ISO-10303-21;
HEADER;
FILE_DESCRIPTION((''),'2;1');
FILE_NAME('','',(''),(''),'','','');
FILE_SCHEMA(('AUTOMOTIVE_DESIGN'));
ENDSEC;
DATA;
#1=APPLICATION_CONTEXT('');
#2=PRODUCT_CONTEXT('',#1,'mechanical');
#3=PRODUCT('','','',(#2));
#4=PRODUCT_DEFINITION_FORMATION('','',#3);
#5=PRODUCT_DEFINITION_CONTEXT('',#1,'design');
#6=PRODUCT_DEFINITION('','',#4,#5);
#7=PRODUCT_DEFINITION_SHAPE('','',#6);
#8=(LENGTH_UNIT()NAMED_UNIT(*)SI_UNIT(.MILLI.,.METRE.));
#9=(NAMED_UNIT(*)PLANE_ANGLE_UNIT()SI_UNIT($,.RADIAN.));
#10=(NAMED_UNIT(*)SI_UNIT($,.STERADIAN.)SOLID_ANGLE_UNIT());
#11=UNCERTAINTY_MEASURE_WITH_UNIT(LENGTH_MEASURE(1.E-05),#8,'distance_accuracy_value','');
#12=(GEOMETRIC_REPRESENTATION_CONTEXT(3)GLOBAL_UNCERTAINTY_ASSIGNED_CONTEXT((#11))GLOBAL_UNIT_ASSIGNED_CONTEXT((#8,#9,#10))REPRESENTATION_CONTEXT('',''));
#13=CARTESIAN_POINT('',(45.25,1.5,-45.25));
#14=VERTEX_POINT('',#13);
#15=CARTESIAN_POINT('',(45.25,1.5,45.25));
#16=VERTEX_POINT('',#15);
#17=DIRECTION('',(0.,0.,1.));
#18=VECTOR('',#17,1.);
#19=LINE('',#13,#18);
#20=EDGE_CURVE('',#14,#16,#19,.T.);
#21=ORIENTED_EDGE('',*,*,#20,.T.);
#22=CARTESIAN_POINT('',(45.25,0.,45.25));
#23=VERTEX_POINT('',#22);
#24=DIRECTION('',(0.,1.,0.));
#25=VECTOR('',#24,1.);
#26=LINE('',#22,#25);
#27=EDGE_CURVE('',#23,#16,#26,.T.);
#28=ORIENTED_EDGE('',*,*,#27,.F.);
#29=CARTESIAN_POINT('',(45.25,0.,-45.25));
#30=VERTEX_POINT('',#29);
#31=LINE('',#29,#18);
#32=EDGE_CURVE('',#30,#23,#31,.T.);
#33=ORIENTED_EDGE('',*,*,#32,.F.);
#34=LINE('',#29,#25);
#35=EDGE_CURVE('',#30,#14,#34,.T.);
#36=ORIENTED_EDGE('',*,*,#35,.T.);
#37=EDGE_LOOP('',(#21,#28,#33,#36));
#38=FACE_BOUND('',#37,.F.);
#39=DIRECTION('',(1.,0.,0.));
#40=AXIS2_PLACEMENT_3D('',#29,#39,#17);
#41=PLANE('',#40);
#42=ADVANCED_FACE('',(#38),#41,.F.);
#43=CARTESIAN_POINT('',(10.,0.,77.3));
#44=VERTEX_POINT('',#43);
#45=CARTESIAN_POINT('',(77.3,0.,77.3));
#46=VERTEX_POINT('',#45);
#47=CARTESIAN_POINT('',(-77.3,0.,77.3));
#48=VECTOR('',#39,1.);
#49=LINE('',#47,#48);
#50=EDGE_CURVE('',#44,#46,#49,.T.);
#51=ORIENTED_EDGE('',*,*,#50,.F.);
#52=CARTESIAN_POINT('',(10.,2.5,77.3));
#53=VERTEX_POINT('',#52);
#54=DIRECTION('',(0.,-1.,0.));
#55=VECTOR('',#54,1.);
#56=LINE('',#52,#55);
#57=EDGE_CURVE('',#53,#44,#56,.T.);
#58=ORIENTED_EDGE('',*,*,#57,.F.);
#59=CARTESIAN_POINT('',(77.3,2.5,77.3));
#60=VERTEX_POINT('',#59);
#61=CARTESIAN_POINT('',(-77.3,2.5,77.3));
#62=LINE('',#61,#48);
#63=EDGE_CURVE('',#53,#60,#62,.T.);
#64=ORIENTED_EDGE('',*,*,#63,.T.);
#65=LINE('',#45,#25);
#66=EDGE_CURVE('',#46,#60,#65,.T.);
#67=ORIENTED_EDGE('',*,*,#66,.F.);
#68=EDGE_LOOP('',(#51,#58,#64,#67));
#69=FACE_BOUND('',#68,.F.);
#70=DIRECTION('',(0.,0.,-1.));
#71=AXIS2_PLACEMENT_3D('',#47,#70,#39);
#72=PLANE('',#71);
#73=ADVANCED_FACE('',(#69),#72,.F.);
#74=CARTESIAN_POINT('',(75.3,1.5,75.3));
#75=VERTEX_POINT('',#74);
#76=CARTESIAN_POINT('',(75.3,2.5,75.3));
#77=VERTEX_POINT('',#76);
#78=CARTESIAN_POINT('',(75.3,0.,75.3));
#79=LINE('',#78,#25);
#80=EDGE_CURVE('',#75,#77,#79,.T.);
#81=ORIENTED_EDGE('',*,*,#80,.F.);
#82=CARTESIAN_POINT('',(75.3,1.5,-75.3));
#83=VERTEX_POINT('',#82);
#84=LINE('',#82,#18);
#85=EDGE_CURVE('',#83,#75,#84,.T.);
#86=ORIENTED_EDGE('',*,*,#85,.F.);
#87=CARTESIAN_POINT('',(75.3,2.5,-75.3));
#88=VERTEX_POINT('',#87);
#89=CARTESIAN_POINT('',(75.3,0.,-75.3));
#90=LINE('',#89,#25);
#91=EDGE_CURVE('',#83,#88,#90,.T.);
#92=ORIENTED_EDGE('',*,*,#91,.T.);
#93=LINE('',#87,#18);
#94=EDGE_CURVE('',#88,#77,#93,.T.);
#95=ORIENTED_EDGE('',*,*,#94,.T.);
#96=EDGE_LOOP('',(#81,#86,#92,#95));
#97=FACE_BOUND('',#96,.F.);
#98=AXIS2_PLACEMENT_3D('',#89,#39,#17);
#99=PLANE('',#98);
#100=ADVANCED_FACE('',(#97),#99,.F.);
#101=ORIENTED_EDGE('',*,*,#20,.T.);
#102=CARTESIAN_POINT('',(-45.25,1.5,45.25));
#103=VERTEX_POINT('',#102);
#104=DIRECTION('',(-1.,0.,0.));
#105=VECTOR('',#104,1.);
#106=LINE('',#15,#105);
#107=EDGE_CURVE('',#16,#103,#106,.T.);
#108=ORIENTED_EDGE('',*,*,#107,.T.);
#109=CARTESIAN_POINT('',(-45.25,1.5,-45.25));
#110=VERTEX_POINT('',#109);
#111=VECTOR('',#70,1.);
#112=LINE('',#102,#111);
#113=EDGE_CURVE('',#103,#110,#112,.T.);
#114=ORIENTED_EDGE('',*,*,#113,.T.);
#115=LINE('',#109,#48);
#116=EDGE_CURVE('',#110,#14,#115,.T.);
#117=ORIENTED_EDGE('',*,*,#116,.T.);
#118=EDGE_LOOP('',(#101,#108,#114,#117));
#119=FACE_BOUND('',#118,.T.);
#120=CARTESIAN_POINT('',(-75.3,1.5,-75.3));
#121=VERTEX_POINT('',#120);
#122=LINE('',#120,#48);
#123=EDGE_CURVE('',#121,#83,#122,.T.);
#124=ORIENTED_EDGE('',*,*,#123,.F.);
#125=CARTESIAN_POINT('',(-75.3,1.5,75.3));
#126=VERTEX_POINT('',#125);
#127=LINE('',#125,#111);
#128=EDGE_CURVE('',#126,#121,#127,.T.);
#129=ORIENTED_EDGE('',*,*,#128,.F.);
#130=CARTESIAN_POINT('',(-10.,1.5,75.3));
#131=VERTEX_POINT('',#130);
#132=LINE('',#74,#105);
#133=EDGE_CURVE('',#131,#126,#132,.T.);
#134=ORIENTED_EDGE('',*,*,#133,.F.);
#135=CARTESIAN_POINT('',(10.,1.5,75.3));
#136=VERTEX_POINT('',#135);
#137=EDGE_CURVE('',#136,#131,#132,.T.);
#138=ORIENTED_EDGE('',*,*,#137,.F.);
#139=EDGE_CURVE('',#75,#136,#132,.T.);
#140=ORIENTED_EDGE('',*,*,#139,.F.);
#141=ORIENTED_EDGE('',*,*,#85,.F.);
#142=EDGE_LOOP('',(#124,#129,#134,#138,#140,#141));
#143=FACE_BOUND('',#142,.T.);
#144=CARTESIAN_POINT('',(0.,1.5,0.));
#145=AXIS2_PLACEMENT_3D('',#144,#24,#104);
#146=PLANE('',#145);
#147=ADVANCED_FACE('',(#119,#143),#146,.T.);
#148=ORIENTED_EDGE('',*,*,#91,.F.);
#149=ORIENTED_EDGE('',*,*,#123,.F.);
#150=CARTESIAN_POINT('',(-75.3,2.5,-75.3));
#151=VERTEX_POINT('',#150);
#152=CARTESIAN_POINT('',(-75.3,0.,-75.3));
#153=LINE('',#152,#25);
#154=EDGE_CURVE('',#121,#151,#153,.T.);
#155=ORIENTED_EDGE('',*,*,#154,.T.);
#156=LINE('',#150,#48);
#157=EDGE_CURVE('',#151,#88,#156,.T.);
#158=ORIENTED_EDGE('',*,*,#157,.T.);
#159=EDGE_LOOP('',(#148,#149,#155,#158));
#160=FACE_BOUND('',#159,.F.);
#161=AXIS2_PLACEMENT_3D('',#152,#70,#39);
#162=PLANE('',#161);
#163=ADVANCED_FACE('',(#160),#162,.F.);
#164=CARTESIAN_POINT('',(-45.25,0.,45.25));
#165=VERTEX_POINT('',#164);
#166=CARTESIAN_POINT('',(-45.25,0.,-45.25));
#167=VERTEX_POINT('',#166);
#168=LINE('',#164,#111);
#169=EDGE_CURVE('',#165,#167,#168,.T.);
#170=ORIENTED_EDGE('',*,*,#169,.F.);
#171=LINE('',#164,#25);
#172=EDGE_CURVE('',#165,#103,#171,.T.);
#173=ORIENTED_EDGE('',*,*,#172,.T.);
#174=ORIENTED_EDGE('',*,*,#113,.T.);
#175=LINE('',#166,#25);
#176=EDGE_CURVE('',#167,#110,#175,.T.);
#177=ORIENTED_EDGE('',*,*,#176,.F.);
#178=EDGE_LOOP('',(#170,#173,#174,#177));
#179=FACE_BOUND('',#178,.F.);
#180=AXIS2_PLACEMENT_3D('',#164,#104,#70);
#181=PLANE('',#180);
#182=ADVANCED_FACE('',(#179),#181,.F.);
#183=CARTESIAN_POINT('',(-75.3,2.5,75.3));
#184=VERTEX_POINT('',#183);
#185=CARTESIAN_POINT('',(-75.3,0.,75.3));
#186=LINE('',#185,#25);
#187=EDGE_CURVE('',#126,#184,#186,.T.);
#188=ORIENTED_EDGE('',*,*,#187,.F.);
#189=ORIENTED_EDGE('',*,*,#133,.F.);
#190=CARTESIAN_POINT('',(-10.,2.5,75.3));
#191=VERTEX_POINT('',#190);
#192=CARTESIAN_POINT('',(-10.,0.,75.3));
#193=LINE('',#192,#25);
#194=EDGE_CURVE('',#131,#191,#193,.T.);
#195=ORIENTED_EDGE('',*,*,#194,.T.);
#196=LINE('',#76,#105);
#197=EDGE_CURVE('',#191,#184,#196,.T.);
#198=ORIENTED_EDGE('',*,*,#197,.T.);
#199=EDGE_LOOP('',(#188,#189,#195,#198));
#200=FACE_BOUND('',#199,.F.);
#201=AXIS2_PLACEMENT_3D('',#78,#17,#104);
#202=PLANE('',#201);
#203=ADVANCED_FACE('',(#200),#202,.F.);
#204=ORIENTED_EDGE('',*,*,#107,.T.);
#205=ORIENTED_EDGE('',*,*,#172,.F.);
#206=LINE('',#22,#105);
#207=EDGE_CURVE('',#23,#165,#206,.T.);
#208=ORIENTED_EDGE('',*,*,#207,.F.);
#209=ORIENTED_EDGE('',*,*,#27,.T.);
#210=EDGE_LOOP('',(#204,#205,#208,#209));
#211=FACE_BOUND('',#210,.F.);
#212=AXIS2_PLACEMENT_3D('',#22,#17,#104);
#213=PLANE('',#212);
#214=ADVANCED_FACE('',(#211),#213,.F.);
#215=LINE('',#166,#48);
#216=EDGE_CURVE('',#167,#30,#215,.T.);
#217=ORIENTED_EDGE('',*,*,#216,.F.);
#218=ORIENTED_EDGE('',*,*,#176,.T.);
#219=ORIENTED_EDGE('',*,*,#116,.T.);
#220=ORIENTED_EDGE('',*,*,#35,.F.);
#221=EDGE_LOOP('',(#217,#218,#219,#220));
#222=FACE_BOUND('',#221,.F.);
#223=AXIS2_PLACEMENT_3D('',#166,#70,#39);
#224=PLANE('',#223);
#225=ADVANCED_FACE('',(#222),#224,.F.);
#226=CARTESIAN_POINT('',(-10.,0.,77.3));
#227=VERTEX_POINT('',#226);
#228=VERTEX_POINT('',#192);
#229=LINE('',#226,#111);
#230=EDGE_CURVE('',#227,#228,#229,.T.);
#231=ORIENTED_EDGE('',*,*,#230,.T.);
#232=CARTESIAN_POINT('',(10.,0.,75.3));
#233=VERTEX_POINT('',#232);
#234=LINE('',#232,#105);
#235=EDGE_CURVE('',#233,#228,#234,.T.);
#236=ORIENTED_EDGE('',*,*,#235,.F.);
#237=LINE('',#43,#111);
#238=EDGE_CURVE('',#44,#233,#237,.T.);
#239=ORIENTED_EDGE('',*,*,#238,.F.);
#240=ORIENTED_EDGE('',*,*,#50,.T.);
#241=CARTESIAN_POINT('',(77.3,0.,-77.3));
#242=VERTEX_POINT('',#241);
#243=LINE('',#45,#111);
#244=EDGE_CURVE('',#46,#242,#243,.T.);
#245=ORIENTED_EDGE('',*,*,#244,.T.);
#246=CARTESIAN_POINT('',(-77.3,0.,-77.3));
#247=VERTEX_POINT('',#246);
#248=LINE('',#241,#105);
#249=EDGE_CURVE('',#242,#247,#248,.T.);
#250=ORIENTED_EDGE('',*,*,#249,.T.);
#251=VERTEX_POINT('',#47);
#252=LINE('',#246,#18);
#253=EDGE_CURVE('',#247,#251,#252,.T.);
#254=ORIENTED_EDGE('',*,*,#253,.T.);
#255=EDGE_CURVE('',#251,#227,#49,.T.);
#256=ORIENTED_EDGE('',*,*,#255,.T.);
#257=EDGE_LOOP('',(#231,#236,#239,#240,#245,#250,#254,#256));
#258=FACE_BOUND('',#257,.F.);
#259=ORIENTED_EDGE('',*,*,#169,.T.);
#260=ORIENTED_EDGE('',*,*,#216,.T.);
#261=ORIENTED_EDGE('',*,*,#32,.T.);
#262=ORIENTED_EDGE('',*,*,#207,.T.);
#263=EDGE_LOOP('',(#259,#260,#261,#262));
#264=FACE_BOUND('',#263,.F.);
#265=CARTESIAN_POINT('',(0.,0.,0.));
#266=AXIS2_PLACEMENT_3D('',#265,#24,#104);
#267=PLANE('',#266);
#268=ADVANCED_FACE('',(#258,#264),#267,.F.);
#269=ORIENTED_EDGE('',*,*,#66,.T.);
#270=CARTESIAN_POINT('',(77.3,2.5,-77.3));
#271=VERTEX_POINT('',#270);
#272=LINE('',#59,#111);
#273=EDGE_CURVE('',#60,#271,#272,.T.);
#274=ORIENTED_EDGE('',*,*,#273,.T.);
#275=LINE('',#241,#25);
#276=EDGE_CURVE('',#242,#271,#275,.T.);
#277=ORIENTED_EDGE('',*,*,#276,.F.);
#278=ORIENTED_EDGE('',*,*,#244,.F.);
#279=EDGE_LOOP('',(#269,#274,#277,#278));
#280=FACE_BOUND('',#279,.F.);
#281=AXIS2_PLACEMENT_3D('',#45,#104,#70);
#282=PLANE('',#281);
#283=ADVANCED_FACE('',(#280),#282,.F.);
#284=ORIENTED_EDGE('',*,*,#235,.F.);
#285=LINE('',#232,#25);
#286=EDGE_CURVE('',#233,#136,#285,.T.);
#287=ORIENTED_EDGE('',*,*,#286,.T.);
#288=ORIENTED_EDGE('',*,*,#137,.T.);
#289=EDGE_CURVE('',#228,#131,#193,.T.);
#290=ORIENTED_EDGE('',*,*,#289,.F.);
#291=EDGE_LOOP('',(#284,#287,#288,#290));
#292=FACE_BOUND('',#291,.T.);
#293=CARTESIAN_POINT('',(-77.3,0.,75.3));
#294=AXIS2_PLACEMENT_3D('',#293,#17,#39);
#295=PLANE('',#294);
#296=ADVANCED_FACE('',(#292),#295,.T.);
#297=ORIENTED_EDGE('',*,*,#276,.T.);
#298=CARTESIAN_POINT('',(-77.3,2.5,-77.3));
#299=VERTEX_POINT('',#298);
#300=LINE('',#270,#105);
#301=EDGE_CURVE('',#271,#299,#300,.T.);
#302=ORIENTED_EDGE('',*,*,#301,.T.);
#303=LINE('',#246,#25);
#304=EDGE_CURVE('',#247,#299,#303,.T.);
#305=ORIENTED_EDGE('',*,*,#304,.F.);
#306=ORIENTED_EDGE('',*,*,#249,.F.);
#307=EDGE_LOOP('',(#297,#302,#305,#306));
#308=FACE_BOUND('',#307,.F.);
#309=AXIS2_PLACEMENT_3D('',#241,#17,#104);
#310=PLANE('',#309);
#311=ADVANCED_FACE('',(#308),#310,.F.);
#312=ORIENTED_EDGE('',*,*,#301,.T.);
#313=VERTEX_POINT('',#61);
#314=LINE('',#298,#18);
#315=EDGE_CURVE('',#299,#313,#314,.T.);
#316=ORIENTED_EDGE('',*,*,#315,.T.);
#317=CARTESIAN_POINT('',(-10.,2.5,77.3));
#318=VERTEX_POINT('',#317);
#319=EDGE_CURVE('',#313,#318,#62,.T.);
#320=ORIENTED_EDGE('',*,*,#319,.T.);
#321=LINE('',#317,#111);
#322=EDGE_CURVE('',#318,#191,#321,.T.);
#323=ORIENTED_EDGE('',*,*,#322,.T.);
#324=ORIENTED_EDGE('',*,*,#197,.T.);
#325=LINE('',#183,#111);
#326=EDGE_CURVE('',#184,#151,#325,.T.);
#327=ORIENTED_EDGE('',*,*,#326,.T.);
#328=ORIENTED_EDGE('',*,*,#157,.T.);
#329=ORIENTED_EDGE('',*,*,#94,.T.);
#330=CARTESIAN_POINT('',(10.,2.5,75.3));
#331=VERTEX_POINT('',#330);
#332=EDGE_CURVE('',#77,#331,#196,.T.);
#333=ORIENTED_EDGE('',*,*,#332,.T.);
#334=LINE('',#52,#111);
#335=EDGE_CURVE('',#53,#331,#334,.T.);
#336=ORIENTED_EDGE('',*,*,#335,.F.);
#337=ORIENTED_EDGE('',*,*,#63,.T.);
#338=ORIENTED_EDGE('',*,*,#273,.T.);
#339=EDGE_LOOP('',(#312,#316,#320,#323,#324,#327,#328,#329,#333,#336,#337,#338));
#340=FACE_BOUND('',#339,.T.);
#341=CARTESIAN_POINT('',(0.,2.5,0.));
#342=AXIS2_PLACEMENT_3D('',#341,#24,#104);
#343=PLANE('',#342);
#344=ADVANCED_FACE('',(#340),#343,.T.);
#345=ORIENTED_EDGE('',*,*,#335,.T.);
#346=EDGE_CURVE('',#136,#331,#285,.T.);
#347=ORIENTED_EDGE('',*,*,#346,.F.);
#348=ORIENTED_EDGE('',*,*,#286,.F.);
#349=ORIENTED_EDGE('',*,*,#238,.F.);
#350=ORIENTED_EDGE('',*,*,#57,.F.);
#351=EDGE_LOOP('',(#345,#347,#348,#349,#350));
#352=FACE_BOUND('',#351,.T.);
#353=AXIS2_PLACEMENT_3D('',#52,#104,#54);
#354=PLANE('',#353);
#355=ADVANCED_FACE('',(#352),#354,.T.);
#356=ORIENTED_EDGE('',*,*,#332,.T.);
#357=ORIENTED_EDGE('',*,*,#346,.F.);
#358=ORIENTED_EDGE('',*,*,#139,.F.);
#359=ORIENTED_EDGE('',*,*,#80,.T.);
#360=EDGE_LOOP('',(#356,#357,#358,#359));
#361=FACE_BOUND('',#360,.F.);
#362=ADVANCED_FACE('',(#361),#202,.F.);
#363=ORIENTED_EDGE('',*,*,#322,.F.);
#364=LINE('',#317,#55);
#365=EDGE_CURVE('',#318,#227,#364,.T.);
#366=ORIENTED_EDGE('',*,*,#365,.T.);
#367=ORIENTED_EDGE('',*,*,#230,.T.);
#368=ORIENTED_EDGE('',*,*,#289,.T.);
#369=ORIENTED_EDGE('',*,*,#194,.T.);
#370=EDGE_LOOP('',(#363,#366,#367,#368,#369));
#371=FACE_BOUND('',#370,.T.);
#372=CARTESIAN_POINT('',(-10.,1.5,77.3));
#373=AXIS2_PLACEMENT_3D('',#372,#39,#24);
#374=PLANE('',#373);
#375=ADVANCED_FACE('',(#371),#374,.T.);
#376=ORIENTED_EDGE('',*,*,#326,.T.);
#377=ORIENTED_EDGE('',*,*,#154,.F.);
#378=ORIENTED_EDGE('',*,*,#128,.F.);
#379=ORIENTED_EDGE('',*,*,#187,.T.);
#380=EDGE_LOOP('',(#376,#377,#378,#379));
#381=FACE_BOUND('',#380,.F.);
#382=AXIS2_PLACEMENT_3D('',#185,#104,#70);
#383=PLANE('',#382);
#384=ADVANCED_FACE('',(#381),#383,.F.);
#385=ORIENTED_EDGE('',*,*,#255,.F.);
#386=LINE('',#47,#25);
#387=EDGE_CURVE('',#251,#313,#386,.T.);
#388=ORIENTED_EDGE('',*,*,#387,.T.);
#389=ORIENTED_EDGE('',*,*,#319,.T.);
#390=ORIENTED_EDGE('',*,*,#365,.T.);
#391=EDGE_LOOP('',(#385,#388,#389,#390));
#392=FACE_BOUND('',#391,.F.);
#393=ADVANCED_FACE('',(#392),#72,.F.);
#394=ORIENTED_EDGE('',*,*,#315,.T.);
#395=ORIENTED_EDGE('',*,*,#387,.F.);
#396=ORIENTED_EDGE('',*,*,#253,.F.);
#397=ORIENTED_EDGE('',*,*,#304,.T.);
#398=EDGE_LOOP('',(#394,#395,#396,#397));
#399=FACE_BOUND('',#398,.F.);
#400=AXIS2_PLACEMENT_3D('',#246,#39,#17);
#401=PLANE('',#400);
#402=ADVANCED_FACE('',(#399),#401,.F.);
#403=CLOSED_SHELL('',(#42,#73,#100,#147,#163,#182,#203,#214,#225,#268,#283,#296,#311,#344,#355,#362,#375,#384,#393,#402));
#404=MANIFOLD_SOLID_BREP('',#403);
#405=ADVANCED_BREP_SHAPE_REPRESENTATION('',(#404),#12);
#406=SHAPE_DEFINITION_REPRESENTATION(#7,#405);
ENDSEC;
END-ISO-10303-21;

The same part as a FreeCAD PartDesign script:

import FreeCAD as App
import Part
import Sketcher


def add_polygon(sketch, points):
    """Adds a closed chain of lines whose ends are joined by coincident constraints."""
    first, n = sketch.GeometryCount, len(points)
    for a, b in zip(points, points[1:] + points[:1]):
        sketch.addGeometry(Part.LineSegment(App.Vector(*a, 0), App.Vector(*b, 0)), False)
    for i in range(n):
        sketch.addConstraint(Sketcher.Constraint("Coincident", first + i, 2, first + (i + 1) % n, 1))

doc = App.newDocument("Part")
body = doc.addObject("PartDesign::Body", "Body")

# Sketch on XZ plane
sketch1 = body.newObject("Sketcher::SketchObject", "Sketch")
sketch1.AttachmentSupport = (doc.getObject("XZ_Plane"), [""])
sketch1.MapMode = "FlatFace"
add_polygon(sketch1, [(75.3, -75.3), (-75.3, -75.3), (-75.3, 75.3), (75.3, 75.3)])  # lines 0-3
add_polygon(sketch1, [(-45.25, 45.25), (-45.25, -45.25), (45.25, -45.25), (45.25, 45.25)])  # lines 4-7
sketch1.addConstraint(Sketcher.Constraint("Horizontal", 0))
sketch1.addConstraint(Sketcher.Constraint("Vertical", 1))
sketch1.addConstraint(Sketcher.Constraint("Horizontal", 2))
sketch1.addConstraint(Sketcher.Constraint("Vertical", 3))
sketch1.addConstraint(Sketcher.Constraint("Vertical", 4))
sketch1.addConstraint(Sketcher.Constraint("Horizontal", 5))
sketch1.addConstraint(Sketcher.Constraint("Vertical", 6))
sketch1.addConstraint(Sketcher.Constraint("Horizontal", 7))
sketch1.addConstraint(Sketcher.Constraint("Symmetric", 0, 2, 2, 2, -1, 1))
sketch1.addConstraint(Sketcher.Constraint("Symmetric", 4, 2, 6, 2, -1, 1))
sketch1.addConstraint(Sketcher.Constraint("Equal", 2, 1))
sketch1.addConstraint(Sketcher.Constraint("Equal", 7, 4))
sketch1.addConstraint(Sketcher.Constraint("DistanceX", 0, 2, 0, 1, 150.6))
sketch1.addConstraint(Sketcher.Constraint("DistanceX", 5, 1, 5, 2, 90.5))
pad1 = body.newObject("PartDesign::Pad", "Pad")
pad1.Profile = sketch1
pad1.Length = 1.5
pad1.Reversed = True

# Sketch on XZ plane
sketch2 = body.newObject("Sketcher::SketchObject", "Sketch001")
sketch2.AttachmentSupport = (doc.getObject("XZ_Plane"), [""])
sketch2.MapMode = "FlatFace"
add_polygon(sketch2, [(-77.3, 77.3), (77.3, 77.3), (77.3, -77.3), (-77.3, -77.3)])  # lines 0-3
add_polygon(sketch2, [(-75.3, 75.3), (-75.3, -75.3), (75.3, -75.3), (75.3, 75.3)])  # lines 4-7
sketch2.addConstraint(Sketcher.Constraint("Horizontal", 0))
sketch2.addConstraint(Sketcher.Constraint("Vertical", 1))
sketch2.addConstraint(Sketcher.Constraint("Horizontal", 2))
sketch2.addConstraint(Sketcher.Constraint("Vertical", 3))
sketch2.addConstraint(Sketcher.Constraint("Vertical", 4))
sketch2.addConstraint(Sketcher.Constraint("Horizontal", 5))
sketch2.addConstraint(Sketcher.Constraint("Vertical", 6))
sketch2.addConstraint(Sketcher.Constraint("Horizontal", 7))
sketch2.addConstraint(Sketcher.Constraint("Symmetric", 0, 2, 2, 2, -1, 1))
sketch2.addConstraint(Sketcher.Constraint("Symmetric", 4, 2, 6, 2, -1, 1))
sketch2.addConstraint(Sketcher.Constraint("Equal", 2, 1))
sketch2.addConstraint(Sketcher.Constraint("Equal", 7, 4))
sketch2.addConstraint(Sketcher.Constraint("DistanceX", 5, 1, 5, 2, 150.6))
sketch2.addConstraint(Sketcher.Constraint("DistanceX", 2, 2, 4, 2, 2.0))
pad2 = body.newObject("PartDesign::Pad", "Pad001")
pad2.Profile = sketch2
pad2.Length = 2.5
pad2.Reversed = True

# Sketch on XY plane
sketch3 = body.newObject("Sketcher::SketchObject", "Sketch002")
sketch3.AttachmentSupport = (doc.getObject("XY_Plane"), [""])
sketch3.MapMode = "FlatFace"
sketch3.AttachmentOffset = App.Placement(App.Vector(0, 0, 77.3), App.Rotation())
add_polygon(sketch3, [(10, 2.5), (-10, 2.5), (-10, 0), (10, 0)])  # lines 0-3
sketch3.addConstraint(Sketcher.Constraint("Horizontal", 0))
sketch3.addConstraint(Sketcher.Constraint("Vertical", 1))
sketch3.addConstraint(Sketcher.Constraint("Horizontal", 2))
sketch3.addConstraint(Sketcher.Constraint("Vertical", 3))
sketch3.addConstraint(Sketcher.Constraint("Symmetric", 1, 2, 2, 2, -1, 1))
sketch3.addConstraint(Sketcher.Constraint("DistanceX", 0, 2, 0, 1, 20.0))
sketch3.addConstraint(Sketcher.Constraint("DistanceY", 1, 2, 1, 1, 2.5))
pocket1 = body.newObject("PartDesign::Pocket", "Pocket")
pocket1.Profile = sketch3
pocket1.Length = 2

doc.recompute()
